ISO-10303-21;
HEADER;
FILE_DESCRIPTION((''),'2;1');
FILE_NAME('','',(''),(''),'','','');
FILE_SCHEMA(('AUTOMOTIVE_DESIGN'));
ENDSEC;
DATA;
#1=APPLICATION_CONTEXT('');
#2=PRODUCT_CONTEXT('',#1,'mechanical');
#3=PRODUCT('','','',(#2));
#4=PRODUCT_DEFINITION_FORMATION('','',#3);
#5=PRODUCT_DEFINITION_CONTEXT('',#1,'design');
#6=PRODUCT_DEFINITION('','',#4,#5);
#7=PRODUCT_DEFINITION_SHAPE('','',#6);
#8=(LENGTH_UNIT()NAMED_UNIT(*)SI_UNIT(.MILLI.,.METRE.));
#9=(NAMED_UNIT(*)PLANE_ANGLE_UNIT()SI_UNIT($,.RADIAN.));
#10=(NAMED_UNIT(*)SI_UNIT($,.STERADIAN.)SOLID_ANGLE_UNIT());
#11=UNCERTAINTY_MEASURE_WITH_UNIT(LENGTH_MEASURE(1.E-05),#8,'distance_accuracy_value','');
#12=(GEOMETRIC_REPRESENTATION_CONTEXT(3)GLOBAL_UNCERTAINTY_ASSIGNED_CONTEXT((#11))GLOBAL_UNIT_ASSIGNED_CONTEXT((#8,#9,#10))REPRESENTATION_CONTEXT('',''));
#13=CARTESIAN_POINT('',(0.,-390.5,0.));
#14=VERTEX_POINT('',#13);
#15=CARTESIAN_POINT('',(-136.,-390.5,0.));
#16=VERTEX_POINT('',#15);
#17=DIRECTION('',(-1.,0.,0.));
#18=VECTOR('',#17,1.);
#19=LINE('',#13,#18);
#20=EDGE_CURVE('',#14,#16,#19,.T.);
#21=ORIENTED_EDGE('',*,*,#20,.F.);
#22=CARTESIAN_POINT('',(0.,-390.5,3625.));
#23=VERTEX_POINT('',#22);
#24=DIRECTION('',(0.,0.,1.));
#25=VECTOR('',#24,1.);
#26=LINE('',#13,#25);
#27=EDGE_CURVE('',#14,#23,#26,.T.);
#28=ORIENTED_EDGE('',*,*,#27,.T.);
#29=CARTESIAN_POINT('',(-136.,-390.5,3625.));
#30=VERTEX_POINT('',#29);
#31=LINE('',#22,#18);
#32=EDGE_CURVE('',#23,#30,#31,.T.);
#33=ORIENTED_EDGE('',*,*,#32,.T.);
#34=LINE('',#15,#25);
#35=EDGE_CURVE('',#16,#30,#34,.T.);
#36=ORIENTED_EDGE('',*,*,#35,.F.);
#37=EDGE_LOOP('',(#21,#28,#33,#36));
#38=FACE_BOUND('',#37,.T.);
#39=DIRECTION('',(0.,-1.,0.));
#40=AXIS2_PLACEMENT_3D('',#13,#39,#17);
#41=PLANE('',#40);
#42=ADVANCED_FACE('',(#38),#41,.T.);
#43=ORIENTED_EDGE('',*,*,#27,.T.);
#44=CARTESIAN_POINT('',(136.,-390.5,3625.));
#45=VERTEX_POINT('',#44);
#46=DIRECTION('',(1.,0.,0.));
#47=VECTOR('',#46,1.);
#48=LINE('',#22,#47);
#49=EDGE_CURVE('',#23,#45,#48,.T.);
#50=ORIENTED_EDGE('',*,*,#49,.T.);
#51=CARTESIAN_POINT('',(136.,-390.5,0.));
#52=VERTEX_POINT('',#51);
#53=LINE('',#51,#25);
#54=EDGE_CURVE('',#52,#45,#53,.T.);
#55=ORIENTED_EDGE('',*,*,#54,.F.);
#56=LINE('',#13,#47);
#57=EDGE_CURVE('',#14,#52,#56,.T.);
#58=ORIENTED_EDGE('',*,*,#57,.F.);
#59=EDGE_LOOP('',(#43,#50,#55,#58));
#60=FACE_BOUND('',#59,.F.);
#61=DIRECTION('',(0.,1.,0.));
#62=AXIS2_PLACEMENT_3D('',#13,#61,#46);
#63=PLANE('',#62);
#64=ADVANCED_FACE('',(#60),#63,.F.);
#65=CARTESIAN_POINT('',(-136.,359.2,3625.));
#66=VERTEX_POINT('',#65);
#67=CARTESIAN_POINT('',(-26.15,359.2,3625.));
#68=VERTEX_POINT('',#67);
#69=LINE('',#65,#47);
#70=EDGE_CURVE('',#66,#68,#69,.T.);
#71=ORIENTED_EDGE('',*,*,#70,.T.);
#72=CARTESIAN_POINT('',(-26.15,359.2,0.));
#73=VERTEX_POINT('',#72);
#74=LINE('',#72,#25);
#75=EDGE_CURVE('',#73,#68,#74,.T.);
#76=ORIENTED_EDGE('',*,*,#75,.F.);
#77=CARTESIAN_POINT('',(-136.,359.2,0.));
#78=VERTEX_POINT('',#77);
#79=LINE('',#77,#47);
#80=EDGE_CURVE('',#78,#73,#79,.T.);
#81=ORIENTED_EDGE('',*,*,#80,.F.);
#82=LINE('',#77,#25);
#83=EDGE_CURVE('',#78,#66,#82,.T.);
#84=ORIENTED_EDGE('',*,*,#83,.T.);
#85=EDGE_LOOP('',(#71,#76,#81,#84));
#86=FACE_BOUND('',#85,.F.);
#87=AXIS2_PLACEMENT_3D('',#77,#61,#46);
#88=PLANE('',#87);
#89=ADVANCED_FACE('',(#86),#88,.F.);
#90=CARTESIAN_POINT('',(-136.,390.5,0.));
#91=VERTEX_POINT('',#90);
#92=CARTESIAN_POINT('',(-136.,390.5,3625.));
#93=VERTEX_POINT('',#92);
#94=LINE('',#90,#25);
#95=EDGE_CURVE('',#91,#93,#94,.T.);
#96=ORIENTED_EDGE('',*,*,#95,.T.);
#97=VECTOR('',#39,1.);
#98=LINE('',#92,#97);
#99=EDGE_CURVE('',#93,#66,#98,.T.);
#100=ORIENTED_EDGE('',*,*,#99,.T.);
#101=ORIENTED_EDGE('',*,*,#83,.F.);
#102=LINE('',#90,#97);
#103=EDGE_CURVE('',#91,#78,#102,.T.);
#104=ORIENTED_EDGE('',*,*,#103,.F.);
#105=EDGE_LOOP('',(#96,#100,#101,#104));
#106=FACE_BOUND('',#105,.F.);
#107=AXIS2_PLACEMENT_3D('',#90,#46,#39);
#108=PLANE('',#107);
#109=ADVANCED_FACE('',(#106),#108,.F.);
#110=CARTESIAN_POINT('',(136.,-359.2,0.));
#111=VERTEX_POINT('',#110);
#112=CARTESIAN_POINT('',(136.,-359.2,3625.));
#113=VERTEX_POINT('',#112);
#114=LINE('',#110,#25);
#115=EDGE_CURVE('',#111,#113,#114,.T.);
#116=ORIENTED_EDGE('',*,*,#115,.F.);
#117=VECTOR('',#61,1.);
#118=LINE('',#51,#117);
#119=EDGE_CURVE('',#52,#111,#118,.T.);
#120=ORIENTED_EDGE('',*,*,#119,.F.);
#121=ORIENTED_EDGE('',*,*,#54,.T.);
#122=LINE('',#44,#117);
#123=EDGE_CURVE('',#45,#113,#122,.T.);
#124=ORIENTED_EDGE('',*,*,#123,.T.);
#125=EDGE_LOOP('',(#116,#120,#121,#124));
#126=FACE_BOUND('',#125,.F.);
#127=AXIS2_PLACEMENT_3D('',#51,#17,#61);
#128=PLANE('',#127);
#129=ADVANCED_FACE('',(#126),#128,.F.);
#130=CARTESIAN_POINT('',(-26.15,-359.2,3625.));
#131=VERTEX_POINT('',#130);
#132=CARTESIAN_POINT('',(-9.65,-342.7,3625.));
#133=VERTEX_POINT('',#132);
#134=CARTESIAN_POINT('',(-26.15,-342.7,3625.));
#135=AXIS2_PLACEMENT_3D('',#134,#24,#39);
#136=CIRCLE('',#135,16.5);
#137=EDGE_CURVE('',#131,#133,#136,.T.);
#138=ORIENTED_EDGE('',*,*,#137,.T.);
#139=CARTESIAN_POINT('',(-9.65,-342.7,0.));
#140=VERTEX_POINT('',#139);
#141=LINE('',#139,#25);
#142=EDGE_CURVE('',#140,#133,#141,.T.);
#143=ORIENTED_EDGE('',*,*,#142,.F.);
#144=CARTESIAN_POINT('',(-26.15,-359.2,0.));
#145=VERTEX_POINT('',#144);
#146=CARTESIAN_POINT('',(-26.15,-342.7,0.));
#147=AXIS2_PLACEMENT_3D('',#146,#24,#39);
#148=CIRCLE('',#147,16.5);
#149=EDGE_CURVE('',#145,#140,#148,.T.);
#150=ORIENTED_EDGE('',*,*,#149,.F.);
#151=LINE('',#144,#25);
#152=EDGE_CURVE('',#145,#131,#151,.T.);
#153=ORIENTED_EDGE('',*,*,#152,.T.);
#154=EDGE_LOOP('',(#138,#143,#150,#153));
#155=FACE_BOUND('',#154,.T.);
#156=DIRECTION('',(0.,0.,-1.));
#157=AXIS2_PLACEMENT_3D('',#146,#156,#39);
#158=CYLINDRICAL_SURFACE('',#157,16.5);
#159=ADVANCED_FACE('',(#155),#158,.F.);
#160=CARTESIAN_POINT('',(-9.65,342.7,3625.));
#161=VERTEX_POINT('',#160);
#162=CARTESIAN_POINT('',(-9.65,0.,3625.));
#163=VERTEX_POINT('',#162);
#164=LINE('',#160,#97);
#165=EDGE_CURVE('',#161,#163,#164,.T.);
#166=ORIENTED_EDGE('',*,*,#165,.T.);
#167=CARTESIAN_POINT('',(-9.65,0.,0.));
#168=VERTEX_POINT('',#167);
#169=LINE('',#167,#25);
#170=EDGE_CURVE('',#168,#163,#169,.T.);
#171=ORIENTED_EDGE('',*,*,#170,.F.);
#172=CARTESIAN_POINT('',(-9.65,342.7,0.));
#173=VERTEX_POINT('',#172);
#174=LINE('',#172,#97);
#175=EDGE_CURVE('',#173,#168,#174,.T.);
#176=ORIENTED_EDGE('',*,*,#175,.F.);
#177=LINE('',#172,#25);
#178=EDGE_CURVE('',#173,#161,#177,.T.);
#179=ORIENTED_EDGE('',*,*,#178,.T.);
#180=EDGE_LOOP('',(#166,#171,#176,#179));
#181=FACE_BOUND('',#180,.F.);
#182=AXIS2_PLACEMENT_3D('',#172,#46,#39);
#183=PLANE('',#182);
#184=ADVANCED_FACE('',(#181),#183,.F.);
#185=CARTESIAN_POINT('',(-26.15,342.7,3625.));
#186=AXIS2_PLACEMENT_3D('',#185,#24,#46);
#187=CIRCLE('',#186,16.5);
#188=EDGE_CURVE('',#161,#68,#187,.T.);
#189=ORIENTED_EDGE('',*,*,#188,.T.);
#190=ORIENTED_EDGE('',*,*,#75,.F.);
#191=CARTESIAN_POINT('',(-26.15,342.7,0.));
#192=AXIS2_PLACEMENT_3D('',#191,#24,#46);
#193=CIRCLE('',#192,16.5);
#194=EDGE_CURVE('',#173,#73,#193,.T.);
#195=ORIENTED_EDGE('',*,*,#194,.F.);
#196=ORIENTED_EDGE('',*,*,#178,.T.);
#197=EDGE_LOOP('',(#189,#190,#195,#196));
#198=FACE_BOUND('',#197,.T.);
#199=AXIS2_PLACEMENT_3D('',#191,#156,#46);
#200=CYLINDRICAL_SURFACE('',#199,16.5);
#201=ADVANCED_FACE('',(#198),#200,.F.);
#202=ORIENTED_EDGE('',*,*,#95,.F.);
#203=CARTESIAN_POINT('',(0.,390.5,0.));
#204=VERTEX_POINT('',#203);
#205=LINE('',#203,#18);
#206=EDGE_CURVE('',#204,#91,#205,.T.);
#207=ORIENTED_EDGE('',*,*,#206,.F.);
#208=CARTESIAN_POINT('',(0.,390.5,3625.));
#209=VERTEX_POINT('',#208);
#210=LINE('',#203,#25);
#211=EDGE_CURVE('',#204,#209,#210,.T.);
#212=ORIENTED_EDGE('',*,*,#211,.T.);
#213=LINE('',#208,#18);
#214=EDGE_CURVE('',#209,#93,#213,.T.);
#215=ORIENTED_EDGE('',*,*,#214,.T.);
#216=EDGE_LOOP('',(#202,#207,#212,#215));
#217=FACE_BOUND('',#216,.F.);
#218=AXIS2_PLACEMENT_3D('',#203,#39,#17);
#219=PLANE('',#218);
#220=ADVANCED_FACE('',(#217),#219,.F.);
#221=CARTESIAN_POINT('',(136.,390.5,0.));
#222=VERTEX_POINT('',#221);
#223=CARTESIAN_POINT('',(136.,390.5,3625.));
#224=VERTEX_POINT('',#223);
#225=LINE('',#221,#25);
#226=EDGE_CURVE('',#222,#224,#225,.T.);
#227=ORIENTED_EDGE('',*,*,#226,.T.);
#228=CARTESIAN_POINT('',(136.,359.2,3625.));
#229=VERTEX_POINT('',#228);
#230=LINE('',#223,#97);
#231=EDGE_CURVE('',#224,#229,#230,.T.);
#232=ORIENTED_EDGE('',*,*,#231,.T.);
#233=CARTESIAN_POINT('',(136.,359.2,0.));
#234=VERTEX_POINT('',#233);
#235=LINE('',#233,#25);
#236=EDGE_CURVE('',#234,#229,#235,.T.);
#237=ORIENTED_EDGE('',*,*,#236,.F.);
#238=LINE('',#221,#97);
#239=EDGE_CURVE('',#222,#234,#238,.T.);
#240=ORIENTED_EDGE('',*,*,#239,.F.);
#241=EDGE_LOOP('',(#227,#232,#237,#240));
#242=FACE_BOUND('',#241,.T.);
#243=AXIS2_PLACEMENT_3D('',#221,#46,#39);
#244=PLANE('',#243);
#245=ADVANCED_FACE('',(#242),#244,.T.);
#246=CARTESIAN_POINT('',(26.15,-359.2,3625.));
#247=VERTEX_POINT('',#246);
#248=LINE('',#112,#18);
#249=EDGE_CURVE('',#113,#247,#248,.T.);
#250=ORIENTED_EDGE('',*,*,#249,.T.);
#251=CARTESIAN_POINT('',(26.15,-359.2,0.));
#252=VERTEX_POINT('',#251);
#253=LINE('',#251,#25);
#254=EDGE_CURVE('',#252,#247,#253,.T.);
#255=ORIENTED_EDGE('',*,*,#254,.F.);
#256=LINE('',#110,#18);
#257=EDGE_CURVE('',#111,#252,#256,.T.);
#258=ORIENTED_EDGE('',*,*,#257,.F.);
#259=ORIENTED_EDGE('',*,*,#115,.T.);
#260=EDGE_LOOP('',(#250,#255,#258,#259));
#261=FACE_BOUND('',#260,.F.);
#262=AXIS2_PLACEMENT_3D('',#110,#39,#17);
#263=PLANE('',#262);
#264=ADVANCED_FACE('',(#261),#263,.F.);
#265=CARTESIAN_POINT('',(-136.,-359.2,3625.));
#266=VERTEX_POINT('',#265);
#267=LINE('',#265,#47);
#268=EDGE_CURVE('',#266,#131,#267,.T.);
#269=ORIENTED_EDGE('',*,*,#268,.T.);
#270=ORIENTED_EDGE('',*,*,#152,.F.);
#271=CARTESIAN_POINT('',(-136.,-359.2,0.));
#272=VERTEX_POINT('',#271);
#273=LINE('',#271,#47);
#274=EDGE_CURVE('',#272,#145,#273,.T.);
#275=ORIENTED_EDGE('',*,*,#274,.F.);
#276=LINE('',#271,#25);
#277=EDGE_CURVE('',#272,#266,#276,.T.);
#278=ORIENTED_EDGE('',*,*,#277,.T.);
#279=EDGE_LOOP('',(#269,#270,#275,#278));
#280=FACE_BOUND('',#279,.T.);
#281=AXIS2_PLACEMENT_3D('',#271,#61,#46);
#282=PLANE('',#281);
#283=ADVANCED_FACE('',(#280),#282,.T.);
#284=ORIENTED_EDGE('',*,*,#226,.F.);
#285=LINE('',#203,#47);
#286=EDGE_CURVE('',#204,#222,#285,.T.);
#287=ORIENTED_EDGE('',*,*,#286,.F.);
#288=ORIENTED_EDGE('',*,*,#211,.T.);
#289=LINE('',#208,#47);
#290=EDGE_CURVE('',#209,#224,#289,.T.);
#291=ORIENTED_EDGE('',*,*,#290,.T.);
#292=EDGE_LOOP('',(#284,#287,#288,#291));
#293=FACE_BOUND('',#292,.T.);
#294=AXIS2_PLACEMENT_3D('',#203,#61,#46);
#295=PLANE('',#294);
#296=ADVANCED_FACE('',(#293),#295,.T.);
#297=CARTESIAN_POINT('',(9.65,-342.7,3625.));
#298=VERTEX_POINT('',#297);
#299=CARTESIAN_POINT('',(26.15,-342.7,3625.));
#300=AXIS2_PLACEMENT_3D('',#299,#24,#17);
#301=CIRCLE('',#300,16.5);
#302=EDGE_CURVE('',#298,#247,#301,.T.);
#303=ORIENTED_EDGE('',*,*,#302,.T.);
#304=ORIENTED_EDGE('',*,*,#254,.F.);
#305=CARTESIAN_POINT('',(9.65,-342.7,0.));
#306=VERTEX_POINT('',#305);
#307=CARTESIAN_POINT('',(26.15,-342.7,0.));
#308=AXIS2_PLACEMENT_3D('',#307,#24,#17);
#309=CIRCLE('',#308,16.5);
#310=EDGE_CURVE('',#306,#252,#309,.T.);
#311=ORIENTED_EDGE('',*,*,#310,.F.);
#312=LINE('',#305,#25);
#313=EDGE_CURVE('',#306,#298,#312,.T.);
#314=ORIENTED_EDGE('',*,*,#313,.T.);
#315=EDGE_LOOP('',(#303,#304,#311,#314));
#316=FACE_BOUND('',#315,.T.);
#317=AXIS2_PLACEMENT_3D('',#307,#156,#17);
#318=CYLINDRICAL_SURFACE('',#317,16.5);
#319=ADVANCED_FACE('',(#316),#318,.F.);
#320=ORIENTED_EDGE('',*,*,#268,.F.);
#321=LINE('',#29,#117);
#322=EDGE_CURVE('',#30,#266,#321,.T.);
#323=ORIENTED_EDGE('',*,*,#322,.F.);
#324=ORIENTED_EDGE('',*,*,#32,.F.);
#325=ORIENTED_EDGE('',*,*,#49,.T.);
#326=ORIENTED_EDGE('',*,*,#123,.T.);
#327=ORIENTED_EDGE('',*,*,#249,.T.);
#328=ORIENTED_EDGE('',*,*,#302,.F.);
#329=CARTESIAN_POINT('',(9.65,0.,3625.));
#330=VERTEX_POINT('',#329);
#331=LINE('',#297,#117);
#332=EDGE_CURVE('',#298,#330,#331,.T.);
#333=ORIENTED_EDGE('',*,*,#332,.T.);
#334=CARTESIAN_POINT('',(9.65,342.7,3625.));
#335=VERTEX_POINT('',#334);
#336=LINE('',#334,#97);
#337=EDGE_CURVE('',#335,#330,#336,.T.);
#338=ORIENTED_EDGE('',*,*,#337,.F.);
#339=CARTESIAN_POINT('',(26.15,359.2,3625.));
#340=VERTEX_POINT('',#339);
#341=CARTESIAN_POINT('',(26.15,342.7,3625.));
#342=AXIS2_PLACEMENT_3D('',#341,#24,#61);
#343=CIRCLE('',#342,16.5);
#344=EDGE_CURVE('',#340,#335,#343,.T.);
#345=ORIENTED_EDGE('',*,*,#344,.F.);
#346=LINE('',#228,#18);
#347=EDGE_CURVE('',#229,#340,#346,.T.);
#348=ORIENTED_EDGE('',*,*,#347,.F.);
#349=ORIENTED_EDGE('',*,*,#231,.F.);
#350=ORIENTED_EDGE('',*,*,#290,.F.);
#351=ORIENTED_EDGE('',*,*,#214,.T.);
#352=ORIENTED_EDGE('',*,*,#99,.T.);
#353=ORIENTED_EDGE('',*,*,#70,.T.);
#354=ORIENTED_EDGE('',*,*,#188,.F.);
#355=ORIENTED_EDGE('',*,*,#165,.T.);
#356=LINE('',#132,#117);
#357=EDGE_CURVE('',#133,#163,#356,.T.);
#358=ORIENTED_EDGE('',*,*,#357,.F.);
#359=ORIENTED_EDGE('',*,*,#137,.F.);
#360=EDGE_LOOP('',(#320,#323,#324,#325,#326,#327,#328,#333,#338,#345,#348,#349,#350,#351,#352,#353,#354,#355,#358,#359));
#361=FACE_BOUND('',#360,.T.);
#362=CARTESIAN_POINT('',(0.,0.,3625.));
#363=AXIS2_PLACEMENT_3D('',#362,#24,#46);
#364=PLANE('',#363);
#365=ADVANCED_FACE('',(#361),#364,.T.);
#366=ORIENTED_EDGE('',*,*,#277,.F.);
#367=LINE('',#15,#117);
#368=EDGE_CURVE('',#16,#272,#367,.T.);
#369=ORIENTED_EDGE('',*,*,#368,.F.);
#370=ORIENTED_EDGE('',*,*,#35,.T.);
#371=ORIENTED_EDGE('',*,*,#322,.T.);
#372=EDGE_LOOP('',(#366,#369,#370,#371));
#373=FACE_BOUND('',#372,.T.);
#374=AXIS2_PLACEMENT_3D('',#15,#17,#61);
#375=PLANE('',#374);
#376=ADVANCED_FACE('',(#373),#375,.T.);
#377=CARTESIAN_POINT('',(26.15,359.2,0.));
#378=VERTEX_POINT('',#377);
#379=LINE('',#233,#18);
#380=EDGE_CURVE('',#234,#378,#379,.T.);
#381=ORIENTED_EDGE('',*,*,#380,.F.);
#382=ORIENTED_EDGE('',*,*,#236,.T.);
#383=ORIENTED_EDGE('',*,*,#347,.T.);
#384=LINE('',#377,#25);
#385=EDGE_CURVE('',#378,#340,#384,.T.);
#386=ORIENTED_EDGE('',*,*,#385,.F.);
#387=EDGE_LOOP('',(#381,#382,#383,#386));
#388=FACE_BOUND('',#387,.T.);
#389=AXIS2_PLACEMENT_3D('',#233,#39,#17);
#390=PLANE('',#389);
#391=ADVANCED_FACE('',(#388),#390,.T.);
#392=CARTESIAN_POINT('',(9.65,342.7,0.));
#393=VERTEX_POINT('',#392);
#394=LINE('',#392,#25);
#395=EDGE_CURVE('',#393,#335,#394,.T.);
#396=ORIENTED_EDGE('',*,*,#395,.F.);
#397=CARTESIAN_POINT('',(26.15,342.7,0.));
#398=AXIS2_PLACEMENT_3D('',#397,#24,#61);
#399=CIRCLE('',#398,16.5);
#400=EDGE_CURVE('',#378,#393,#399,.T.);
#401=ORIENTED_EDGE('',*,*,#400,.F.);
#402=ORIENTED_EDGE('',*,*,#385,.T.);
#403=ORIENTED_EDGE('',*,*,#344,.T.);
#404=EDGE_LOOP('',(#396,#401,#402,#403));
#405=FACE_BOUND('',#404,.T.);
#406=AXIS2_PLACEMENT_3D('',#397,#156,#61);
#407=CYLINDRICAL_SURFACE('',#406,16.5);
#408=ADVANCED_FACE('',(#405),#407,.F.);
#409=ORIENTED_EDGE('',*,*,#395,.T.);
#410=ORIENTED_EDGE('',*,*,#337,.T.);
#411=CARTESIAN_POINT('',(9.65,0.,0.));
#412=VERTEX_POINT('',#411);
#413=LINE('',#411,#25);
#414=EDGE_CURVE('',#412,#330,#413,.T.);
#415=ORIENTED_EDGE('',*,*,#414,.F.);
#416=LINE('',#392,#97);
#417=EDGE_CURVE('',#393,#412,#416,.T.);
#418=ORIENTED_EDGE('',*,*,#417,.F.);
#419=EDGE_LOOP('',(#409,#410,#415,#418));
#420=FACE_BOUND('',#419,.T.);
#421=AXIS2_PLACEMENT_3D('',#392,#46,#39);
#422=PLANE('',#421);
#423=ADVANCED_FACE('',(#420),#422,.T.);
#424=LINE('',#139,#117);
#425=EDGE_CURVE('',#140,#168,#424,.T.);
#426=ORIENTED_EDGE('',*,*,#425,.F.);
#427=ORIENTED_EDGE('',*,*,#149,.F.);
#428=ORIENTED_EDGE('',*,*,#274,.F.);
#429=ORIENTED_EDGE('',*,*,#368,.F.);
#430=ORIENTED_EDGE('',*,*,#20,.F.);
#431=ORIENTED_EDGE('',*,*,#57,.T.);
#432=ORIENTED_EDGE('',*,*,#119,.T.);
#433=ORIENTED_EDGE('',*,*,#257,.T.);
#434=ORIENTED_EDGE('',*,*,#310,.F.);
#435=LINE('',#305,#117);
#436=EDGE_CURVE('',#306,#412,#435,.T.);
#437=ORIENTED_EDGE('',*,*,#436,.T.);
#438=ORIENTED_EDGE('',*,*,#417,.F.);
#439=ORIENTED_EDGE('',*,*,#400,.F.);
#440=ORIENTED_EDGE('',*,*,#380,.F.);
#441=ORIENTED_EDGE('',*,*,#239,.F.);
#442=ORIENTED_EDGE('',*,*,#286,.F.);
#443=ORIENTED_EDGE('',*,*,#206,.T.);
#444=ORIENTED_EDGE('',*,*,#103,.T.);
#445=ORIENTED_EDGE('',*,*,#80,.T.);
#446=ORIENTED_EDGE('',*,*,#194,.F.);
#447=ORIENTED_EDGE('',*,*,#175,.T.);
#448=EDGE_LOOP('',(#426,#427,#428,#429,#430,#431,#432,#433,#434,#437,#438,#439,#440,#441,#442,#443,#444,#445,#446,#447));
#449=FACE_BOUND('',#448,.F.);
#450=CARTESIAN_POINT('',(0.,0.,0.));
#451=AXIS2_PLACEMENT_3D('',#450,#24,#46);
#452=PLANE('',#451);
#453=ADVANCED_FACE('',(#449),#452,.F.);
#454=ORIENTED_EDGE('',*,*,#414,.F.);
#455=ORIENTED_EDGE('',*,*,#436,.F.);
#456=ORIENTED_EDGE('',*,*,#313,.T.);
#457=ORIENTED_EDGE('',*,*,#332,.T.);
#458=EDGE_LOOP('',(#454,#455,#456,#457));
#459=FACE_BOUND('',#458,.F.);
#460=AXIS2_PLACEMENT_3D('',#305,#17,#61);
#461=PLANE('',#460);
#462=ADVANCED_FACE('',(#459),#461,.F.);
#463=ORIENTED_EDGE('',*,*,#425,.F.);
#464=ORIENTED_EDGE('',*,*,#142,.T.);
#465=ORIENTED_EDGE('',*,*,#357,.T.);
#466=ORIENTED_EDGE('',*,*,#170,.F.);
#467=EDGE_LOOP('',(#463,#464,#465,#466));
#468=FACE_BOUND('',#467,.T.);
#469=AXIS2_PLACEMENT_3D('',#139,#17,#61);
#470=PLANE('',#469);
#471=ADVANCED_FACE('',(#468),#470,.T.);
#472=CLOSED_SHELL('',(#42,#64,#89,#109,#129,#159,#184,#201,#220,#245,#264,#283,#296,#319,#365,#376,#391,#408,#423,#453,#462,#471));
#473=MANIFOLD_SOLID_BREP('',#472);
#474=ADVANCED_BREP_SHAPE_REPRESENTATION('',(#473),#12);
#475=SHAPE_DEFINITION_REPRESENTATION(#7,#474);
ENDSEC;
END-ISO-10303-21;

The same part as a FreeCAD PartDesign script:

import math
import FreeCAD as App
import Part
import Sketcher

V = App.Vector

doc = App.newDocument("Part")
body = doc.addObject("PartDesign::Body", "Body")

# Sketch on XY plane
sketch1 = doc.addObject("Sketcher::SketchObject", "Sketch")
body.addObject(sketch1)
sketch1.AttachmentSupport = (doc.XY_Plane, [""])
sketch1.MapMode = "FlatFace"
sketch1.addGeometry([
    Part.LineSegment(V(-136, -359, 0), V(-136, -390, 0)),  # 0
    Part.LineSegment(V(-136, -390, 0), V(136, -390, 0)),  # 1
    Part.LineSegment(V(136, -390, 0), V(136, -359, 0)),  # 2
    Part.LineSegment(V(136, -359, 0), V(26, -359, 0)),  # 3
    Part.ArcOfCircle(Part.Circle(V(26, -343, 0), V(0, 0, 1), 16), math.radians(180), math.radians(270)),  # 4
    Part.LineSegment(V(10, -343, 0), V(10, 343, 0)),  # 5
    Part.ArcOfCircle(Part.Circle(V(26, 343, 0), V(0, 0, 1), 16), math.radians(90), math.radians(180)),  # 6
    Part.LineSegment(V(26, 359, 0), V(136, 359, 0)),  # 7
    Part.LineSegment(V(136, 359, 0), V(136, 390, 0)),  # 8
    Part.LineSegment(V(136, 390, 0), V(-136, 390, 0)),  # 9
    Part.LineSegment(V(-136, 390, 0), V(-136, 359, 0)),  # 10
    Part.LineSegment(V(-136, 359, 0), V(-26, 359, 0)),  # 11
    Part.ArcOfCircle(Part.Circle(V(-26, 343, 0), V(0, 0, 1), 16), math.radians(0), math.radians(90)),  # 12
    Part.LineSegment(V(-10, 343, 0), V(-10, -343, 0)),  # 13
    Part.ArcOfCircle(Part.Circle(V(-26, -343, 0), V(0, 0, 1), 16), math.radians(-90), math.radians(0)),  # 14
    Part.LineSegment(V(-26, -359, 0), V(-136, -359, 0)),  # 15
], False)
sketch1.addConstraint([
    Sketcher.Constraint("Coincident", 0, 2, 1, 1),
    Sketcher.Constraint("Coincident", 1, 2, 2, 1),
    Sketcher.Constraint("Coincident", 2, 2, 3, 1),
    Sketcher.Constraint("Tangent", 3, 2, 4, 2),
    Sketcher.Constraint("Tangent", 4, 1, 5, 1),
    Sketcher.Constraint("Tangent", 5, 2, 6, 2),
    Sketcher.Constraint("Tangent", 6, 1, 7, 1),
    Sketcher.Constraint("Coincident", 7, 2, 8, 1),
    Sketcher.Constraint("Coincident", 8, 2, 9, 1),
    Sketcher.Constraint("Coincident", 9, 2, 10, 1),
    Sketcher.Constraint("Coincident", 10, 2, 11, 1),
    Sketcher.Constraint("Tangent", 11, 2, 12, 2),
    Sketcher.Constraint("Tangent", 12, 1, 13, 1),
    Sketcher.Constraint("Tangent", 13, 2, 14, 2),
    Sketcher.Constraint("Tangent", 14, 1, 15, 1),
    Sketcher.Constraint("Coincident", 15, 2, 0, 1),
    Sketcher.Constraint("Vertical", 0),
    Sketcher.Constraint("Horizontal", 1),
    Sketcher.Constraint("Vertical", 2),
    Sketcher.Constraint("Horizontal", 3),
    Sketcher.Constraint("Vertical", 5),
    Sketcher.Constraint("Horizontal", 7),
    Sketcher.Constraint("Vertical", 8),
    Sketcher.Constraint("Horizontal", 9),
    Sketcher.Constraint("Vertical", 10),
    Sketcher.Constraint("Horizontal", 11),
    Sketcher.Constraint("Vertical", 13),
    Sketcher.Constraint("Horizontal", 15),
    Sketcher.Constraint("Equal", 4, 6),
    Sketcher.Constraint("Equal", 6, 12),
    Sketcher.Constraint("Equal", 12, 14),
    Sketcher.Constraint("Symmetric", 4, 3, 12, 3, -1, 1),
    Sketcher.Constraint("Symmetric", 0, 2, 8, 2, -1, 1),
    Sketcher.Constraint("Symmetric", 7, 2, 10, 2, -2),
    Sketcher.Constraint("Symmetric", 2, 2, 15, 2, -2),
    Sketcher.Constraint("Radius", 4, 16.5),
    Sketcher.Constraint("DistanceY", 0, 2, 0, 1, 31.3),
    Sketcher.Constraint("DistanceX", 0, 2, -1, 1, 136.0),
    Sketcher.Constraint("DistanceY", 0, 2, -1, 1, 390.5),
    Sketcher.Constraint("DistanceX", -1, 1, 4, 1, 9.65),
])
pad1 = doc.addObject("PartDesign::Pad", "Pad")
body.addObject(pad1)
pad1.Profile = sketch1
pad1.Length = 3625

doc.recompute()
